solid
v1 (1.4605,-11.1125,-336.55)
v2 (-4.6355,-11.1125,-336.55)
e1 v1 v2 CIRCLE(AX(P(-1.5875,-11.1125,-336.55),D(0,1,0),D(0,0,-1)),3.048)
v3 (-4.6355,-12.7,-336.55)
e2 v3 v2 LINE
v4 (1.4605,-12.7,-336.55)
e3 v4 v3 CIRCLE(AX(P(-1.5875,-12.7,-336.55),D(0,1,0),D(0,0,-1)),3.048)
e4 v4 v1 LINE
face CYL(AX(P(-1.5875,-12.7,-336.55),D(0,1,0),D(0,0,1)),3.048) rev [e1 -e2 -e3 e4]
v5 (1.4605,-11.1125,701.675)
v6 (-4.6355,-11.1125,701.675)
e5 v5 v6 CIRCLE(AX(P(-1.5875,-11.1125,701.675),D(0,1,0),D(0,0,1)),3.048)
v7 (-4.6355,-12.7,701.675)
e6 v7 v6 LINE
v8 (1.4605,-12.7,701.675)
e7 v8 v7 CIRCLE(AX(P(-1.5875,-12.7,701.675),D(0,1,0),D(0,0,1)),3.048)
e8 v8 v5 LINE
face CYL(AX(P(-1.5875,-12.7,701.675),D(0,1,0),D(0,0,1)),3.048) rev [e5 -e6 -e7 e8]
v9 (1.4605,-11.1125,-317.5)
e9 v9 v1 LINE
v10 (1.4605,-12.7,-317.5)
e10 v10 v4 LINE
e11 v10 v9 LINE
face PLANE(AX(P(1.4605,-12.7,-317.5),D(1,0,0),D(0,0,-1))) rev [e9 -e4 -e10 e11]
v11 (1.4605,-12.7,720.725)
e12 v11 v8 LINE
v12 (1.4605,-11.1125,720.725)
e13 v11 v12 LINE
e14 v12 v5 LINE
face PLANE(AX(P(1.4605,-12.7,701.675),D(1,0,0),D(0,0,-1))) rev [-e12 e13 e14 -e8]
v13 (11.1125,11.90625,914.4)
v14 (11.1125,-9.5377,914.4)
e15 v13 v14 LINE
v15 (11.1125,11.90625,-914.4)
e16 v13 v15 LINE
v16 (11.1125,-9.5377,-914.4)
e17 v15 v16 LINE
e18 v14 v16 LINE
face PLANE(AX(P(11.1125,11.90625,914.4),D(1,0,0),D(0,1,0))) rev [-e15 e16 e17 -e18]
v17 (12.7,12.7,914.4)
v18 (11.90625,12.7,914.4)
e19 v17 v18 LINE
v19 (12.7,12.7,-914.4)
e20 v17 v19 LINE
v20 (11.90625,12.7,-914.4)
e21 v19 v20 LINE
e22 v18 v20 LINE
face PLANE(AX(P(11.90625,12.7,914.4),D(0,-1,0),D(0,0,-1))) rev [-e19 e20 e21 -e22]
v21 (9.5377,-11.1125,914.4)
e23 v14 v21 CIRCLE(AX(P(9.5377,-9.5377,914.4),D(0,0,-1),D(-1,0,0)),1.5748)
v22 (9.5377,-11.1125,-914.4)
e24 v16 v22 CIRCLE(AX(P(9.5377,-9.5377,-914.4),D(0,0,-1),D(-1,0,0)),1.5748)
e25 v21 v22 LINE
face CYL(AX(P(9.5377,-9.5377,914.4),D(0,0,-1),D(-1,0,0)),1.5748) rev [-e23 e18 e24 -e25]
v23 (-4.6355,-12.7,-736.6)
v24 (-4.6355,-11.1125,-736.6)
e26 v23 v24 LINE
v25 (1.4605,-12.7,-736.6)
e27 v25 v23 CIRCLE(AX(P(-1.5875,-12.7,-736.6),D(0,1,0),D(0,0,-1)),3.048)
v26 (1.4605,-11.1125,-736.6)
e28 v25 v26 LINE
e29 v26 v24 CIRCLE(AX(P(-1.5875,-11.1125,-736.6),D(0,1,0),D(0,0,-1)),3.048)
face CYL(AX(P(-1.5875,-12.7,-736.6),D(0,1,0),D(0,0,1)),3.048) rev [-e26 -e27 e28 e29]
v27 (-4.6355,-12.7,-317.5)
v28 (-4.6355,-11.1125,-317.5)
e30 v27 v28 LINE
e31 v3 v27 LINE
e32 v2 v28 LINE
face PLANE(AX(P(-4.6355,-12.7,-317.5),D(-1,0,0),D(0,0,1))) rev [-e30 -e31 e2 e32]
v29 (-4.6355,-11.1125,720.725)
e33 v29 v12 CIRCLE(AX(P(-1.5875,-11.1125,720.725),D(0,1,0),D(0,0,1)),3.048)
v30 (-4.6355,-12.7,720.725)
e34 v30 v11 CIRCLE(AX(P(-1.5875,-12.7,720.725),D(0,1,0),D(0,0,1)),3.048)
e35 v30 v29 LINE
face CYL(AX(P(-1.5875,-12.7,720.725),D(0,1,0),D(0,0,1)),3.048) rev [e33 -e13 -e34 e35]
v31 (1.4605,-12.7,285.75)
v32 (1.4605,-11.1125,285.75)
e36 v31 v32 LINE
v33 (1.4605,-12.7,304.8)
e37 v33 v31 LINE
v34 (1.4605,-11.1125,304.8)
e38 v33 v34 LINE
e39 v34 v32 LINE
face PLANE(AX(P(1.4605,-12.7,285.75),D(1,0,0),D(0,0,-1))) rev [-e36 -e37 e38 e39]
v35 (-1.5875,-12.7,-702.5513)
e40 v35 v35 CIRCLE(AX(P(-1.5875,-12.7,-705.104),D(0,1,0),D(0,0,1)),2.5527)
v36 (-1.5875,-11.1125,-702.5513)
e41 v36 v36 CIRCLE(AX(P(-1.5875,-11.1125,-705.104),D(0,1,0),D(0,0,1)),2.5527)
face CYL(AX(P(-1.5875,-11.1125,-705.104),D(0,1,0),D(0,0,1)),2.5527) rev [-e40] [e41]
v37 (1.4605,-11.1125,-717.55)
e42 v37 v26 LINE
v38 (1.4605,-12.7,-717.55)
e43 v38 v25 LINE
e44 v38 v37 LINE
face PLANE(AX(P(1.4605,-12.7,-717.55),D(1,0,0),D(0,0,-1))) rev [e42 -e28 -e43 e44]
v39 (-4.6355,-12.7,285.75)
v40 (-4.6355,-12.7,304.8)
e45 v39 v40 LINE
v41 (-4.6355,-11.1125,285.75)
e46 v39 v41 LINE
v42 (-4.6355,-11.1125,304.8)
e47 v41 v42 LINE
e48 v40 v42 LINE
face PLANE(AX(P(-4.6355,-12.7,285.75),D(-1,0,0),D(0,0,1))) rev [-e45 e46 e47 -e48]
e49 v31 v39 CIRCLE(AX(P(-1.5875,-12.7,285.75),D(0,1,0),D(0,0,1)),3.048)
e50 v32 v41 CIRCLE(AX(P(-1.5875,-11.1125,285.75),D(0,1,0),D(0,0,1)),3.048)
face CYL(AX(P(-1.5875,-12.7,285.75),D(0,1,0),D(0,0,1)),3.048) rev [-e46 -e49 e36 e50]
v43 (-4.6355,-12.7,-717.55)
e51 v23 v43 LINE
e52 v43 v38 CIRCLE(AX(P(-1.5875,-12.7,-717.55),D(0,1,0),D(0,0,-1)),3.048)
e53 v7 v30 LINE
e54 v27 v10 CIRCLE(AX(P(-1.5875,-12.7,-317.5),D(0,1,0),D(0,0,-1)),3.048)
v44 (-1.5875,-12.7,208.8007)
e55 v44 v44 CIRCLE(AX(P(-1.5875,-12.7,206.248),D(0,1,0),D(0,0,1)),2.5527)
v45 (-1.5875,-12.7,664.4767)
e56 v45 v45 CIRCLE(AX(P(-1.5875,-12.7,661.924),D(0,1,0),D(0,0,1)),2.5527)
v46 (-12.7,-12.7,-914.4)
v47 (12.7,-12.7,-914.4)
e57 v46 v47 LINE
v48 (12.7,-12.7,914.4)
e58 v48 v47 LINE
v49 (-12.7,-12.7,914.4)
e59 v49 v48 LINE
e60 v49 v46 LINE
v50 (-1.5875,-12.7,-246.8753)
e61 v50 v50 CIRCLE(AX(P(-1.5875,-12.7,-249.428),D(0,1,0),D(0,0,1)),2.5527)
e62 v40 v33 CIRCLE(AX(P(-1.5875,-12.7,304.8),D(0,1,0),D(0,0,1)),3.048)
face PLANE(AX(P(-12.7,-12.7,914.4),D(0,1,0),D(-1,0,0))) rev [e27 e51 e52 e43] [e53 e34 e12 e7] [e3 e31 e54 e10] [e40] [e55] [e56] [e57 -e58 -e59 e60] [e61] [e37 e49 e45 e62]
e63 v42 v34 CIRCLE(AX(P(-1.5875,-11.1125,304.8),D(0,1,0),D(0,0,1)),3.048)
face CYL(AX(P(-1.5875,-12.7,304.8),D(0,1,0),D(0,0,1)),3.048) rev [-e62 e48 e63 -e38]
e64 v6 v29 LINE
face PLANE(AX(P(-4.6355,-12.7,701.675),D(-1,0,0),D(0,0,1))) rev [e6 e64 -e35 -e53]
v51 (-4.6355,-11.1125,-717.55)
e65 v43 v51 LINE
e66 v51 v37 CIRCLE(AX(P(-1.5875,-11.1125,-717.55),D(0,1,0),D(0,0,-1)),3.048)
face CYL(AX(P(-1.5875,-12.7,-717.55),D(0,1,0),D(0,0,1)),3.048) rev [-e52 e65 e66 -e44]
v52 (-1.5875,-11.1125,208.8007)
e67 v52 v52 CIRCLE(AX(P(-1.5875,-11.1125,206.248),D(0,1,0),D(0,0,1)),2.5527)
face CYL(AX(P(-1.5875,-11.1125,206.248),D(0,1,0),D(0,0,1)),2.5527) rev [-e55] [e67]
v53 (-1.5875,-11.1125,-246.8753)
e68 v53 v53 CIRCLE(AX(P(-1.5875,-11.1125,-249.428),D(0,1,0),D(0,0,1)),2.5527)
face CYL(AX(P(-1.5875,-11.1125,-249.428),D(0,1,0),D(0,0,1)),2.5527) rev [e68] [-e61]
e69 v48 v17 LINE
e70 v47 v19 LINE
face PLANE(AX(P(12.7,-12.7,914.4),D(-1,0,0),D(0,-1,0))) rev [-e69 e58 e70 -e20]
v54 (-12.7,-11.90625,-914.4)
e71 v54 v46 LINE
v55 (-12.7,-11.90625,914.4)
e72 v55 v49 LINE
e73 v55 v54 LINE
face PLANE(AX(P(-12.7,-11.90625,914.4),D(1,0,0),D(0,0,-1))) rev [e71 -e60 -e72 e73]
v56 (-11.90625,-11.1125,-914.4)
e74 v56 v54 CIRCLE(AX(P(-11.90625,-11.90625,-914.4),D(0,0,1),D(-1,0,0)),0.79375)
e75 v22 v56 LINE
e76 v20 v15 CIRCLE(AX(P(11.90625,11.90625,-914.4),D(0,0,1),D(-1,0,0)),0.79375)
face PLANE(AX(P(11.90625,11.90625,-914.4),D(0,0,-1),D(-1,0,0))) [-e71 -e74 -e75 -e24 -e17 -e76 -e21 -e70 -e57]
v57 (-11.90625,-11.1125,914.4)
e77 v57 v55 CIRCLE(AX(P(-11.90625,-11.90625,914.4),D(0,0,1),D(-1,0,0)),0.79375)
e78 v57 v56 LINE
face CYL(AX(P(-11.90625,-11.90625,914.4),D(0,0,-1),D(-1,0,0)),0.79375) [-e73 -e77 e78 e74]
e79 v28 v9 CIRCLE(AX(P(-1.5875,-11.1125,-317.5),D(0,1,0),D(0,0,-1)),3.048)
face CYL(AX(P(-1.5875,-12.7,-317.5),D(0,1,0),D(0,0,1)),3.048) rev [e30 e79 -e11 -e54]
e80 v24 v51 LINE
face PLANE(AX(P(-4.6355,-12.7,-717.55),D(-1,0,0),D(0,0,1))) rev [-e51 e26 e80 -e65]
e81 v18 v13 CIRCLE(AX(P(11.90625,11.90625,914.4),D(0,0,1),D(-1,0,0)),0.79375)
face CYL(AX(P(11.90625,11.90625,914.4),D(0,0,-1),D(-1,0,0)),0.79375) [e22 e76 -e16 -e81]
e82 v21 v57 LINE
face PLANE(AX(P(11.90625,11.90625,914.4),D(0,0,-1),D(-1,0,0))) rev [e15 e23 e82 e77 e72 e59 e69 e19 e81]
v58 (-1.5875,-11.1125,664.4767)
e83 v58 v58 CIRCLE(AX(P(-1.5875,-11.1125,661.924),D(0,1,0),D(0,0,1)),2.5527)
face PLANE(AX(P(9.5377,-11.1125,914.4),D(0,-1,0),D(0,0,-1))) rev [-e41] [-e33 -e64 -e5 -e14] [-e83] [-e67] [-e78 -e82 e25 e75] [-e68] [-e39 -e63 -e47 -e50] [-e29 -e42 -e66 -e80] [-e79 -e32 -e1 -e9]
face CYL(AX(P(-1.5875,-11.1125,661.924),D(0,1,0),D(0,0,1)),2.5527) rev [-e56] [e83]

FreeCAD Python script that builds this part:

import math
import FreeCAD as App
import Part
import Sketcher

V = App.Vector
Q = App.Units.Quantity

doc = App.newDocument("Part")
body = doc.addObject("PartDesign::Body", "Body")

sketch1 = doc.addObject("Sketcher::SketchObject", "Sketch")
body.addObject(sketch1)
sketch1.AttachmentSupport = (doc.XY_Plane, [""])
sketch1.MapMode = "FlatFace"
sketch1.addGeometry([
    Part.LineSegment(V(-12.7, -12.7, 0), V(12.7, -12.7, 0)),
    Part.LineSegment(V(12.7, -12.7, 0), V(12.7, 12.7, 0)),
    Part.LineSegment(V(12.7, 12.7, 0), V(11.9, 12.7, 0)),
    Part.ArcOfCircle(Part.Circle(V(11.9, 11.9, 0), V(0, 0, 1), 0.8), math.radians(90), math.radians(180)),
    Part.LineSegment(V(11.1, 11.9, 0), V(11.1, -9.5, 0)),
    Part.ArcOfCircle(Part.Circle(V(9.5, -9.5, 0), V(0, 0, 1), 1.6), math.radians(-90), math.radians(0)),
    Part.LineSegment(V(9.5, -11.1, 0), V(-11.9, -11.1, 0)),
    Part.ArcOfCircle(Part.Circle(V(-11.9, -11.9, 0), V(0, 0, 1), 0.8), math.radians(90), math.radians(180)),
    Part.LineSegment(V(-12.7, -11.9, 0), V(-12.7, -12.7, 0)),
], False)
sketch1.addConstraint([
    Sketcher.Constraint("Coincident", 0, 2, 1, 1),
    Sketcher.Constraint("Coincident", 1, 2, 2, 1),
    Sketcher.Constraint("Tangent", 2, 2, 3, 1),
    Sketcher.Constraint("Tangent", 3, 2, 4, 1),
    Sketcher.Constraint("Tangent", 4, 2, 5, 2),
    Sketcher.Constraint("Tangent", 5, 1, 6, 1),
    Sketcher.Constraint("Tangent", 6, 2, 7, 1),
    Sketcher.Constraint("Tangent", 7, 2, 8, 1),
    Sketcher.Constraint("Coincident", 8, 2, 0, 1),
    Sketcher.Constraint("Horizontal", 0),
    Sketcher.Constraint("Vertical", 1),
    Sketcher.Constraint("Horizontal", 2),
    Sketcher.Constraint("Vertical", 4),
    Sketcher.Constraint("Horizontal", 6),
    Sketcher.Constraint("Vertical", 8),
    Sketcher.Constraint("Equal", 3, 7),
    Sketcher.Constraint("Symmetric", 3, 3, 7, 3, -1, 1),
    Sketcher.Constraint("Symmetric", 1, 2, 8, 2, -1, 1),
    Sketcher.Constraint("Equal", 0, 1),
    Sketcher.Constraint("DistanceX", 0, 1, 0, 2, Q("1 in")),
    Sketcher.Constraint("Radius", 3, Q("0.03125 in")),
    Sketcher.Constraint("Radius", 5, Q("0.062 in")),
])
pad1 = doc.addObject("PartDesign::Pad", "Pad")
body.addObject(pad1)
pad1.Profile = sketch1
pad1.Length = Q("72 in")
pad1.Midplane = True

sketch2 = doc.addObject("Sketcher::SketchObject", "Sketch001")
body.addObject(sketch2)
sketch2.AttachmentSupport = (doc.XZ_Plane, [""])
sketch2.MapMode = "FlatFace"
sketch2.AttachmentOffset = App.Placement(V(0, 0, 0.4375 * 25.4), App.Rotation())
sketch2.addGeometry([
    Part.Circle(V(-1.6, 661.9, 0), V(0, 0, 1), 2.6),
    Part.Circle(V(-1.6, 206.2, 0), V(0, 0, 1), 2.6),
    Part.Circle(V(-1.6, -705.1, 0), V(0, 0, 1), 2.6),
    Part.Circle(V(-1.6, -249.4, 0), V(0, 0, 1), 2.6),
], False)
sketch2.addConstraint([
    Sketcher.Constraint("Equal", 0, 1),
    Sketcher.Constraint("Equal", 1, 2),
    Sketcher.Constraint("Equal", 2, 3),
    Sketcher.Constraint("Vertical", 0, 3, 1, 3),
    Sketcher.Constraint("Vertical", 1, 3, 2, 3),
    Sketcher.Constraint("Vertical", 2, 3, 3, 3),
    Sketcher.Constraint("Diameter", 0, Q("0.201 in")),
    Sketcher.Constraint("DistanceY", -1, 1, 0, 3, Q("26.06 in")),
    Sketcher.Constraint("DistanceY", -1, 1, 1, 3, Q("8.12 in")),
    Sketcher.Constraint("DistanceY", 2, 3, -1, 1, Q("27.76 in")),
    Sketcher.Constraint("DistanceY", 3, 3, -1, 1, Q("9.82 in")),
    Sketcher.Constraint("DistanceX", 0, 3, -1, 1, Q("0.0625 in")),
])
doc.recompute()
hole = doc.addObject("PartDesign::Hole", "Hole")
body.addObject(hole)
hole.Profile = sketch2
hole.ThreadType = "None"
hole.Diameter = Q("0.201 in")
hole.DepthType = "ThroughAll"
hole.Reversed = True

sketch3 = doc.addObject("Sketcher::SketchObject", "Sketch002")
body.addObject(sketch3)
sketch3.AttachmentSupport = (doc.XZ_Plane, [""])
sketch3.MapMode = "FlatFace"
sketch3.AttachmentOffset = App.Placement(V(0, 0, 0.4375 * 25.4), App.Rotation())
sketch3.addGeometry([
    Part.LineSegment(V(1.5, 720.7, 0), V(1.5, 701.7, 0)),
    Part.ArcOfCircle(Part.Circle(V(-1.6, 701.7, 0), V(0, 0, 1), 3), math.radians(180), math.radians(360)),
    Part.LineSegment(V(-4.6, 701.7, 0), V(-4.6, 720.7, 0)),
    Part.ArcOfCircle(Part.Circle(V(-1.6, 720.7, 0), V(0, 0, 1), 3), math.radians(0), math.radians(180)),
    Part.LineSegment(V(1.5, 304.8, 0), V(1.5, 285.8, 0)),
    Part.ArcOfCircle(Part.Circle(V(-1.6, 285.8, 0), V(0, 0, 1), 3), math.radians(180), math.radians(360)),
    Part.LineSegment(V(-4.6, 285.8, 0), V(-4.6, 304.8, 0)),
    Part.ArcOfCircle(Part.Circle(V(-1.6, 304.8, 0), V(0, 0, 1), 3), math.radians(0), math.radians(180)),
    Part.LineSegment(V(1.5, -317.5, 0), V(1.5, -336.6, 0)),
    Part.ArcOfCircle(Part.Circle(V(-1.6, -336.6, 0), V(0, 0, 1), 3), math.radians(180), math.radians(360)),
    Part.LineSegment(V(-4.6, -336.6, 0), V(-4.6, -317.5, 0)),
    Part.ArcOfCircle(Part.Circle(V(-1.6, -317.5, 0), V(0, 0, 1), 3), math.radians(0), math.radians(180)),
    Part.LineSegment(V(1.5, -717.5, 0), V(1.5, -736.6, 0)),
    Part.ArcOfCircle(Part.Circle(V(-1.6, -736.6, 0), V(0, 0, 1), 3), math.radians(180), math.radians(360)),
    Part.LineSegment(V(-4.6, -736.6, 0), V(-4.6, -717.5, 0)),
    Part.ArcOfCircle(Part.Circle(V(-1.6, -717.5, 0), V(0, 0, 1), 3), math.radians(0), math.radians(180)),
], False)
sketch3.addConstraint([
    Sketcher.Constraint("Tangent", 0, 2, 1, 2),
    Sketcher.Constraint("Tangent", 1, 1, 2, 1),
    Sketcher.Constraint("Tangent", 2, 2, 3, 2),
    Sketcher.Constraint("Tangent", 3, 1, 0, 1),
    Sketcher.Constraint("Tangent", 4, 2, 5, 2),
    Sketcher.Constraint("Tangent", 5, 1, 6, 1),
    Sketcher.Constraint("Tangent", 6, 2, 7, 2),
    Sketcher.Constraint("Tangent", 7, 1, 4, 1),
    Sketcher.Constraint("Tangent", 8, 2, 9, 2),
    Sketcher.Constraint("Tangent", 9, 1, 10, 1),
    Sketcher.Constraint("Tangent", 10, 2, 11, 2),
    Sketcher.Constraint("Tangent", 11, 1, 8, 1),
    Sketcher.Constraint("Tangent", 12, 2, 13, 2),
    Sketcher.Constraint("Tangent", 13, 1, 14, 1),
    Sketcher.Constraint("Tangent", 14, 2, 15, 2),
    Sketcher.Constraint("Tangent", 15, 1, 12, 1),
    Sketcher.Constraint("Vertical", 0),
    Sketcher.Constraint("Vertical", 2),
    Sketcher.Constraint("Vertical", 4),
    Sketcher.Constraint("Vertical", 6),
    Sketcher.Constraint("Vertical", 8),
    Sketcher.Constraint("Vertical", 10),
    Sketcher.Constraint("Vertical", 12),
    Sketcher.Constraint("Vertical", 14),
    Sketcher.Constraint("Equal", 3, 5),
    Sketcher.Constraint("Equal", 7, 9),
    Sketcher.Constraint("Equal", 11, 13),
    Sketcher.Constraint("Vertical", 3, 3, 5, 3),
    Sketcher.Constraint("Vertical", 7, 3, 9, 3),
    Sketcher.Constraint("Vertical", 11, 3, 13, 3),
    Sketcher.Constraint("Equal", 2, 4),
    Sketcher.Constraint("Equal", 6, 8),
    Sketcher.Constraint("Equal", 10, 12),
    Sketcher.Constraint("Radius", 1, Q("0.12 in")),
    Sketcher.Constraint("DistanceY", -1, 1, 7, 3, Q("12 in")),
    Sketcher.Constraint("DistanceY", 13, 3, -1, 1, Q("29 in")),
    Sketcher.Constraint("DistanceY", 15, 3, 9, 3, Q("15 in")),
    Sketcher.Constraint("DistanceY", 0, 2, 0, 1, Q("0.75 in")),
    Sketcher.Constraint("DistanceX", 1, 3, -1, 1, Q("0.0625 in")),
    Sketcher.Constraint("DistanceY", -1, 1, 1, 3, Q("27.625 in")),
])
pocket1 = doc.addObject("PartDesign::Pocket", "Pocket")
body.addObject(pocket1)
pocket1.Profile = sketch3
pocket1.Type = "ThroughAll"
pocket1.Reversed = True

doc.recompute()
